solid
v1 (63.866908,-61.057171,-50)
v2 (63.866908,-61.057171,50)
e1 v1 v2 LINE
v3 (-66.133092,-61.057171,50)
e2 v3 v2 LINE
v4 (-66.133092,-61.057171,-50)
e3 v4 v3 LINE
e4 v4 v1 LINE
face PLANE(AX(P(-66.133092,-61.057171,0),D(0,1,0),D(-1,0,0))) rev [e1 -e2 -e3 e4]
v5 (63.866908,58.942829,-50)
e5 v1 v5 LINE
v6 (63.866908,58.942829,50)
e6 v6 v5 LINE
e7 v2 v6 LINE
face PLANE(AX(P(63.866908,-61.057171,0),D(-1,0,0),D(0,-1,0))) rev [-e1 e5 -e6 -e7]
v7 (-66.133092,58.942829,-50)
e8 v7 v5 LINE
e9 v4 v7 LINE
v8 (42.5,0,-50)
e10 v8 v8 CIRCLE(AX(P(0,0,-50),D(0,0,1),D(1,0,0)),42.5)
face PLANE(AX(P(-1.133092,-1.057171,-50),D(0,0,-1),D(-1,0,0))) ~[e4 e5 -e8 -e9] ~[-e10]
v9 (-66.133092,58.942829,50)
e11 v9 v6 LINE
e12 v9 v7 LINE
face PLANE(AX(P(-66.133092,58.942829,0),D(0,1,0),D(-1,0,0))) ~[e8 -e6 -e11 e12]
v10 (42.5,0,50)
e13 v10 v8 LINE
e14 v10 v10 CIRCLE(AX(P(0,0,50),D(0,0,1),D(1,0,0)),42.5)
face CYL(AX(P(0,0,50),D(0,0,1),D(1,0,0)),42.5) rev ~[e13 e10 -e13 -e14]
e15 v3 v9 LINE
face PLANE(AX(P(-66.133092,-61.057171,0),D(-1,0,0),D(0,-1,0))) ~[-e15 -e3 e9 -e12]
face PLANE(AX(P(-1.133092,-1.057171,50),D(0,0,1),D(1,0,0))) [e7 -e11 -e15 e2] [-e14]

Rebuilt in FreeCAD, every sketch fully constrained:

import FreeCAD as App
import Part
import Sketcher

V = App.Vector
Q = App.Units.Quantity

doc = App.newDocument("Part")
body = doc.addObject("PartDesign::Body", "Body")

# Sketch on XY plane
sketch1 = body.newObject("Sketcher::SketchObject", "Sketch")
sketch1.AttachmentSupport = (doc.getObject("XY_Plane"), [""])
sketch1.MapMode = "FlatFace"
sketch1.addGeometry([
    Part.LineSegment(V(-66, 59, 0), V(-66, -61, 0)),
    Part.LineSegment(V(-66, -61, 0), V(64, -61, 0)),
    Part.LineSegment(V(64, -61, 0), V(64, 59, 0)),
    Part.LineSegment(V(64, 59, 0), V(-66, 59, 0)),
], False)
sketch1.addConstraint([
    Sketcher.Constraint("Coincident", 0, 2, 1, 1),
    Sketcher.Constraint("Coincident", 1, 2, 2, 1),
    Sketcher.Constraint("Coincident", 2, 2, 3, 1),
    Sketcher.Constraint("Coincident", 3, 2, 0, 1),
    Sketcher.Constraint("Vertical", 0),
    Sketcher.Constraint("Horizontal", 1),
    Sketcher.Constraint("Vertical", 2),
    Sketcher.Constraint("Horizontal", 3),
    Sketcher.Constraint("DistanceX", 1, 1, 1, 2, Q("130 mm")),
    Sketcher.Constraint("DistanceY", 0, 2, 0, 1, Q("120 mm")),
    Sketcher.Constraint("DistanceY", 0, 2, -1, 1, Q("61.057171 mm")),
    Sketcher.Constraint("DistanceX", -1, 1, 1, 2, Q("63.866908 mm")),
])
pad1 = body.newObject("PartDesign::Pad", "Pad")
pad1.Profile = sketch1
pad1.Length = 50
body2 = doc.addObject("PartDesign::Body", "Body001")
doc.recompute()

body2.BaseFeature = body
doc.recompute()

mirroring = doc.addObject("Part::Mirroring", "Mirroring")
mirroring.Source = body
mirroring.Base = V(-1.133092, -1.057171, 0)
mirroring.Normal = V(0, 0, -1)
body3 = doc.addObject("PartDesign::Body", "Body002")
body3.BaseFeature = mirroring
boolean = body2.newObject("PartDesign::Boolean", "Boolean")
boolean.Type = "Fuse"
boolean.addObjects([body3])
doc.recompute()

# Sketch on XY plane
sketch2 = body2.newObject("Sketcher::SketchObject", "Sketch001")
sketch2.AttachmentSupport = (doc.getObject("XY_Plane001"), [""])
sketch2.MapMode = "FlatFace"
sketch2.AttachmentOffset = App.Placement(V(0, 0, 50), App.Rotation())
sketch2.addGeometry(Part.Circle(V(0, 0, 0), V(0, 0, 1), 42), False)
sketch2.addConstraint([
    Sketcher.Constraint("Coincident", 0, 3, -1, 1),
    Sketcher.Constraint("Diameter", 0, Q("85 mm")),
])
pocket1 = body2.newObject("PartDesign::Pocket", "Pocket")
pocket1.Profile = sketch2
pocket1.Length = 100
mirroring.Visibility = False

doc.recompute()
